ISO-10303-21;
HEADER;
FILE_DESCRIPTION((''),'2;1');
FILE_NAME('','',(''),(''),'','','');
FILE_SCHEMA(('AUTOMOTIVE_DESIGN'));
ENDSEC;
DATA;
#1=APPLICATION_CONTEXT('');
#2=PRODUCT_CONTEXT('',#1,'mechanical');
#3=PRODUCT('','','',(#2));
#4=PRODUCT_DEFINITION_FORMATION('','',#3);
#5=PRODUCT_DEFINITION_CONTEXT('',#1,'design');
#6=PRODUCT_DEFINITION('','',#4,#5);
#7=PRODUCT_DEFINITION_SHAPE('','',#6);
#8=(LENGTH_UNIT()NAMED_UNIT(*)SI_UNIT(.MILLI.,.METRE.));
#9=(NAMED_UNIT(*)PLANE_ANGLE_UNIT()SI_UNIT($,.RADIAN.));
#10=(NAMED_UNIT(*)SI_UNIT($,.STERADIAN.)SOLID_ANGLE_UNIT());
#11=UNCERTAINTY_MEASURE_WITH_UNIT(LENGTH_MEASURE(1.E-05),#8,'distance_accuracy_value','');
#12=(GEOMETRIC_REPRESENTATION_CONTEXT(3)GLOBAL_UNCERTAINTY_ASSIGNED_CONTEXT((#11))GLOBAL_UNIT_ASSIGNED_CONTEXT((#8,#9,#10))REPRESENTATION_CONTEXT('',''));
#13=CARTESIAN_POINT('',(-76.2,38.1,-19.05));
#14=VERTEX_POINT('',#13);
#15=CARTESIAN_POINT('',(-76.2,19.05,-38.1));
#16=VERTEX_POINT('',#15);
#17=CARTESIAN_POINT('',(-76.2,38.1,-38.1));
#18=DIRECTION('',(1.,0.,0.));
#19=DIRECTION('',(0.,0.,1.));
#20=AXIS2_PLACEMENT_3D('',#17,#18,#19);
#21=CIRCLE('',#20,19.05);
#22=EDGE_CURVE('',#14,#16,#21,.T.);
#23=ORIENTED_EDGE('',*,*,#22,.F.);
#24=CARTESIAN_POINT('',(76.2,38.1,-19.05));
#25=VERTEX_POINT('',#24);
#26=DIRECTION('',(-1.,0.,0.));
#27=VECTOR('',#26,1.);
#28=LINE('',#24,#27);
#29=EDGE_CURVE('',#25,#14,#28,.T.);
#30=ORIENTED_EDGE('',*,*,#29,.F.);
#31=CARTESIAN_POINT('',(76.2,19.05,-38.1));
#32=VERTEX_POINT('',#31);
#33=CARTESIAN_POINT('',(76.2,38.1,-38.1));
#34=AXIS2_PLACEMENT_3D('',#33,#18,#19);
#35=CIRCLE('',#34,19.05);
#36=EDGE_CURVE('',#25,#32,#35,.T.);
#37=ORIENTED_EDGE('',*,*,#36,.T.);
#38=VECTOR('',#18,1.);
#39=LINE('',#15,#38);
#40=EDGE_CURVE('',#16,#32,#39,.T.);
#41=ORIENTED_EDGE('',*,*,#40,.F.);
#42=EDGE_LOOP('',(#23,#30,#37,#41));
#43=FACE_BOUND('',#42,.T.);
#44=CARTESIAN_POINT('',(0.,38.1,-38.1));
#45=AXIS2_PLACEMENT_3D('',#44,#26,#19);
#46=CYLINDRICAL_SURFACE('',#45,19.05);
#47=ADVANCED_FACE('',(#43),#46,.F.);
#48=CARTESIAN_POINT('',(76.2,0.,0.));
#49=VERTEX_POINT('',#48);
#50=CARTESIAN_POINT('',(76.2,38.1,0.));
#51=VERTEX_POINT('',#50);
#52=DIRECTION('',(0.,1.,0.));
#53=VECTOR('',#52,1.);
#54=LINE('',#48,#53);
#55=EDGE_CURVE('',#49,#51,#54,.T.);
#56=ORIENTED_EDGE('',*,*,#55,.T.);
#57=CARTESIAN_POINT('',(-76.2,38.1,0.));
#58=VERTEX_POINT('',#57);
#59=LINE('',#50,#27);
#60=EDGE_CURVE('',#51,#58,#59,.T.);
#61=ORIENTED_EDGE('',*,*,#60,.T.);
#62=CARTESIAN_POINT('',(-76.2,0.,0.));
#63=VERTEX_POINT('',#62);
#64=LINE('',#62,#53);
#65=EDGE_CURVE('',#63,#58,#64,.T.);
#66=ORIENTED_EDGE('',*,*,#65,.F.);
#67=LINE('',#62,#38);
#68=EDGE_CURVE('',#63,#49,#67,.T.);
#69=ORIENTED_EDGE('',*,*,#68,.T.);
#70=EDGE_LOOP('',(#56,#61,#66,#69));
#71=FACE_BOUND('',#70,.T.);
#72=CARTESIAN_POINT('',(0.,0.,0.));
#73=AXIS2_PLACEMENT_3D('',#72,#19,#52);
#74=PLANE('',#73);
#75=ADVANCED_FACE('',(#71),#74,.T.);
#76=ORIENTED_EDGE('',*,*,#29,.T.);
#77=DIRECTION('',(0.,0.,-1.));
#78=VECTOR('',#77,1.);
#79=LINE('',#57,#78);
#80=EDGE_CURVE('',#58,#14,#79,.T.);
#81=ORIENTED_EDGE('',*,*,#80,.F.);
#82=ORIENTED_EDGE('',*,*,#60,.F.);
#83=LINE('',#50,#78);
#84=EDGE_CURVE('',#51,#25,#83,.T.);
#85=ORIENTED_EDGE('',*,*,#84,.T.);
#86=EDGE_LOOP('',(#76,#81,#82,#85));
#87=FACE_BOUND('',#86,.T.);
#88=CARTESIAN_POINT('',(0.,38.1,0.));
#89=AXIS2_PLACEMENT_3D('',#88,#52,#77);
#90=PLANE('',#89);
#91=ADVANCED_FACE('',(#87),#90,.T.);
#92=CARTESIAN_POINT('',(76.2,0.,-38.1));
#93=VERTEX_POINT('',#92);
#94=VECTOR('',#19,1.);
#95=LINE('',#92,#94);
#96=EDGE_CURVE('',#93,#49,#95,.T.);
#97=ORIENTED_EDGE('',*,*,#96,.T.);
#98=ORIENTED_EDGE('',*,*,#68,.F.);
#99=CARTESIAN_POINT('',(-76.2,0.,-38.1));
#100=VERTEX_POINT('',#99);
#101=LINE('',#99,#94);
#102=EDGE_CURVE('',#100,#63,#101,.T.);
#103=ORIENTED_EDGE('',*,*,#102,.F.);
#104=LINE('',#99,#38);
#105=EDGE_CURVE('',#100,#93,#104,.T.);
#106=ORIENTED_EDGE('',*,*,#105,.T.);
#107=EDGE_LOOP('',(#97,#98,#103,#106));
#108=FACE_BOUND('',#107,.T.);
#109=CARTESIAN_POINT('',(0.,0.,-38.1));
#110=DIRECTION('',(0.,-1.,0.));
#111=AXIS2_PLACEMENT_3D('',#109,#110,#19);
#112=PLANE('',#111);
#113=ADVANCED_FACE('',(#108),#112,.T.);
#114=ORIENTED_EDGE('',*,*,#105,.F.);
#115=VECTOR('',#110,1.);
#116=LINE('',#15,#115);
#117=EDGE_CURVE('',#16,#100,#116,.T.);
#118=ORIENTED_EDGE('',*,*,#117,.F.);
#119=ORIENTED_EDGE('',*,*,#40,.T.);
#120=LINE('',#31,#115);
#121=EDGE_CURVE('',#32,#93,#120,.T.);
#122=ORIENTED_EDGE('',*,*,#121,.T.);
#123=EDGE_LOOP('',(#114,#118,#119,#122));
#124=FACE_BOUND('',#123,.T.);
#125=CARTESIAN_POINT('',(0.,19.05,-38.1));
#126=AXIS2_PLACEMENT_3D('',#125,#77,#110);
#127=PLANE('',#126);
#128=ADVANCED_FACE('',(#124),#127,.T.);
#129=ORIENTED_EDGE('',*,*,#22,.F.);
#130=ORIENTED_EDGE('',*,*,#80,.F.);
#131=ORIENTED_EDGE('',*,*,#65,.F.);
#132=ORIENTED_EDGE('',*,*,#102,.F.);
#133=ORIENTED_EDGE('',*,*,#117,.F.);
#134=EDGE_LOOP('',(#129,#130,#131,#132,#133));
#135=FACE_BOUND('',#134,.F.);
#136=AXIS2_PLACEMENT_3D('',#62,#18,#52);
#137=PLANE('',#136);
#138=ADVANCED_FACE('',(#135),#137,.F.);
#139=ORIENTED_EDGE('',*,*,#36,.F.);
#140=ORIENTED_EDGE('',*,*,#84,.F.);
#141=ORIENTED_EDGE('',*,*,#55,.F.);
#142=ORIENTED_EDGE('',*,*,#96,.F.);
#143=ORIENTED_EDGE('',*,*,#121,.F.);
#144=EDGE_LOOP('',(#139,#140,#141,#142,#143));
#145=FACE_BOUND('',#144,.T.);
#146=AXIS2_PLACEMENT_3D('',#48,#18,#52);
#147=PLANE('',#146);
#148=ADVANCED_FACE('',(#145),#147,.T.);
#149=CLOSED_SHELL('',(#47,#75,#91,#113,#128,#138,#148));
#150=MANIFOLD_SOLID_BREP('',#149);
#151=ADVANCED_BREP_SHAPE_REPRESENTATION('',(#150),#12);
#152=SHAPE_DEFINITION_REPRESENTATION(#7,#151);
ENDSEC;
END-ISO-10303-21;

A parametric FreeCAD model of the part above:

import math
import FreeCAD as App
import Part
import Sketcher
from FreeCAD import Vector
Q = App.Units.Quantity

doc = App.newDocument("Part")
params = doc.addObject("Spreadsheet::Sheet", "Params")
for row, (alias, value) in enumerate([
    ("sketch1_radius", "0.75 in"),
    ("sketch1_width", "1.5 in"),
    ("pad1_length", "6 in"),
], start=1):
    params.set(f"A{row}", alias)
    params.set(f"B{row}", "=" + value)
    params.setAlias(f"B{row}", alias)

body = doc.addObject("PartDesign::Body", "Body")

sketch1 = body.newObject("Sketcher::SketchObject", "Sketch")
sketch1.AttachmentSupport = (doc.getObject("YZ_Plane"), [""])
sketch1.MapMode = "FlatFace"
sketch1.addGeometry([
    Part.LineSegment(Vector(38, 0, 0), Vector(0, 0, 0)),
    Part.LineSegment(Vector(0, 0, 0), Vector(0, -38, 0)),
    Part.LineSegment(Vector(0, -38, 0), Vector(19, -38, 0)),
    Part.ArcOfCircle(Part.Circle(Vector(38, -38, 0), Vector(0, 0, 1), 19), math.radians(90), math.radians(180)),
    Part.LineSegment(Vector(38, -19, 0), Vector(38, 0, 0)),
], False)
sketch1.addConstraint([
    Sketcher.Constraint("Coincident", 0, 2, 1, 1),
    Sketcher.Constraint("Coincident", 1, 2, 2, 1),
    Sketcher.Constraint("Coincident", 2, 2, 3, 2),
    Sketcher.Constraint("Coincident", 3, 1, 4, 1),
    Sketcher.Constraint("Coincident", 4, 2, 0, 1),
    Sketcher.Constraint("Horizontal", 0),
    Sketcher.Constraint("Vertical", 1),
    Sketcher.Constraint("Horizontal", 2),
    Sketcher.Constraint("Vertical", 4),
    Sketcher.Constraint("Coincident", 0, 2, -1, 1),
    Sketcher.Constraint("Horizontal", 3, 3, 1, 2),
    Sketcher.Constraint("Equal", 0, 1),
    Sketcher.Constraint("Equal", 2, 4),
    Sketcher.Constraint("Radius", 3, Q("0.75 in")),
    Sketcher.Constraint("DistanceX", 0, 2, 0, 1, Q("1.5 in")),
])
sketch1.setExpression("Constraints[13]", "Params.sketch1_radius")
sketch1.setExpression("Constraints[14]", "Params.sketch1_width")
pad1 = body.newObject("PartDesign::Pad", "Pad")
pad1.Profile = sketch1
pad1.setExpression("Length", "Params.pad1_length")
pad1.Midplane = True

doc.recompute()
